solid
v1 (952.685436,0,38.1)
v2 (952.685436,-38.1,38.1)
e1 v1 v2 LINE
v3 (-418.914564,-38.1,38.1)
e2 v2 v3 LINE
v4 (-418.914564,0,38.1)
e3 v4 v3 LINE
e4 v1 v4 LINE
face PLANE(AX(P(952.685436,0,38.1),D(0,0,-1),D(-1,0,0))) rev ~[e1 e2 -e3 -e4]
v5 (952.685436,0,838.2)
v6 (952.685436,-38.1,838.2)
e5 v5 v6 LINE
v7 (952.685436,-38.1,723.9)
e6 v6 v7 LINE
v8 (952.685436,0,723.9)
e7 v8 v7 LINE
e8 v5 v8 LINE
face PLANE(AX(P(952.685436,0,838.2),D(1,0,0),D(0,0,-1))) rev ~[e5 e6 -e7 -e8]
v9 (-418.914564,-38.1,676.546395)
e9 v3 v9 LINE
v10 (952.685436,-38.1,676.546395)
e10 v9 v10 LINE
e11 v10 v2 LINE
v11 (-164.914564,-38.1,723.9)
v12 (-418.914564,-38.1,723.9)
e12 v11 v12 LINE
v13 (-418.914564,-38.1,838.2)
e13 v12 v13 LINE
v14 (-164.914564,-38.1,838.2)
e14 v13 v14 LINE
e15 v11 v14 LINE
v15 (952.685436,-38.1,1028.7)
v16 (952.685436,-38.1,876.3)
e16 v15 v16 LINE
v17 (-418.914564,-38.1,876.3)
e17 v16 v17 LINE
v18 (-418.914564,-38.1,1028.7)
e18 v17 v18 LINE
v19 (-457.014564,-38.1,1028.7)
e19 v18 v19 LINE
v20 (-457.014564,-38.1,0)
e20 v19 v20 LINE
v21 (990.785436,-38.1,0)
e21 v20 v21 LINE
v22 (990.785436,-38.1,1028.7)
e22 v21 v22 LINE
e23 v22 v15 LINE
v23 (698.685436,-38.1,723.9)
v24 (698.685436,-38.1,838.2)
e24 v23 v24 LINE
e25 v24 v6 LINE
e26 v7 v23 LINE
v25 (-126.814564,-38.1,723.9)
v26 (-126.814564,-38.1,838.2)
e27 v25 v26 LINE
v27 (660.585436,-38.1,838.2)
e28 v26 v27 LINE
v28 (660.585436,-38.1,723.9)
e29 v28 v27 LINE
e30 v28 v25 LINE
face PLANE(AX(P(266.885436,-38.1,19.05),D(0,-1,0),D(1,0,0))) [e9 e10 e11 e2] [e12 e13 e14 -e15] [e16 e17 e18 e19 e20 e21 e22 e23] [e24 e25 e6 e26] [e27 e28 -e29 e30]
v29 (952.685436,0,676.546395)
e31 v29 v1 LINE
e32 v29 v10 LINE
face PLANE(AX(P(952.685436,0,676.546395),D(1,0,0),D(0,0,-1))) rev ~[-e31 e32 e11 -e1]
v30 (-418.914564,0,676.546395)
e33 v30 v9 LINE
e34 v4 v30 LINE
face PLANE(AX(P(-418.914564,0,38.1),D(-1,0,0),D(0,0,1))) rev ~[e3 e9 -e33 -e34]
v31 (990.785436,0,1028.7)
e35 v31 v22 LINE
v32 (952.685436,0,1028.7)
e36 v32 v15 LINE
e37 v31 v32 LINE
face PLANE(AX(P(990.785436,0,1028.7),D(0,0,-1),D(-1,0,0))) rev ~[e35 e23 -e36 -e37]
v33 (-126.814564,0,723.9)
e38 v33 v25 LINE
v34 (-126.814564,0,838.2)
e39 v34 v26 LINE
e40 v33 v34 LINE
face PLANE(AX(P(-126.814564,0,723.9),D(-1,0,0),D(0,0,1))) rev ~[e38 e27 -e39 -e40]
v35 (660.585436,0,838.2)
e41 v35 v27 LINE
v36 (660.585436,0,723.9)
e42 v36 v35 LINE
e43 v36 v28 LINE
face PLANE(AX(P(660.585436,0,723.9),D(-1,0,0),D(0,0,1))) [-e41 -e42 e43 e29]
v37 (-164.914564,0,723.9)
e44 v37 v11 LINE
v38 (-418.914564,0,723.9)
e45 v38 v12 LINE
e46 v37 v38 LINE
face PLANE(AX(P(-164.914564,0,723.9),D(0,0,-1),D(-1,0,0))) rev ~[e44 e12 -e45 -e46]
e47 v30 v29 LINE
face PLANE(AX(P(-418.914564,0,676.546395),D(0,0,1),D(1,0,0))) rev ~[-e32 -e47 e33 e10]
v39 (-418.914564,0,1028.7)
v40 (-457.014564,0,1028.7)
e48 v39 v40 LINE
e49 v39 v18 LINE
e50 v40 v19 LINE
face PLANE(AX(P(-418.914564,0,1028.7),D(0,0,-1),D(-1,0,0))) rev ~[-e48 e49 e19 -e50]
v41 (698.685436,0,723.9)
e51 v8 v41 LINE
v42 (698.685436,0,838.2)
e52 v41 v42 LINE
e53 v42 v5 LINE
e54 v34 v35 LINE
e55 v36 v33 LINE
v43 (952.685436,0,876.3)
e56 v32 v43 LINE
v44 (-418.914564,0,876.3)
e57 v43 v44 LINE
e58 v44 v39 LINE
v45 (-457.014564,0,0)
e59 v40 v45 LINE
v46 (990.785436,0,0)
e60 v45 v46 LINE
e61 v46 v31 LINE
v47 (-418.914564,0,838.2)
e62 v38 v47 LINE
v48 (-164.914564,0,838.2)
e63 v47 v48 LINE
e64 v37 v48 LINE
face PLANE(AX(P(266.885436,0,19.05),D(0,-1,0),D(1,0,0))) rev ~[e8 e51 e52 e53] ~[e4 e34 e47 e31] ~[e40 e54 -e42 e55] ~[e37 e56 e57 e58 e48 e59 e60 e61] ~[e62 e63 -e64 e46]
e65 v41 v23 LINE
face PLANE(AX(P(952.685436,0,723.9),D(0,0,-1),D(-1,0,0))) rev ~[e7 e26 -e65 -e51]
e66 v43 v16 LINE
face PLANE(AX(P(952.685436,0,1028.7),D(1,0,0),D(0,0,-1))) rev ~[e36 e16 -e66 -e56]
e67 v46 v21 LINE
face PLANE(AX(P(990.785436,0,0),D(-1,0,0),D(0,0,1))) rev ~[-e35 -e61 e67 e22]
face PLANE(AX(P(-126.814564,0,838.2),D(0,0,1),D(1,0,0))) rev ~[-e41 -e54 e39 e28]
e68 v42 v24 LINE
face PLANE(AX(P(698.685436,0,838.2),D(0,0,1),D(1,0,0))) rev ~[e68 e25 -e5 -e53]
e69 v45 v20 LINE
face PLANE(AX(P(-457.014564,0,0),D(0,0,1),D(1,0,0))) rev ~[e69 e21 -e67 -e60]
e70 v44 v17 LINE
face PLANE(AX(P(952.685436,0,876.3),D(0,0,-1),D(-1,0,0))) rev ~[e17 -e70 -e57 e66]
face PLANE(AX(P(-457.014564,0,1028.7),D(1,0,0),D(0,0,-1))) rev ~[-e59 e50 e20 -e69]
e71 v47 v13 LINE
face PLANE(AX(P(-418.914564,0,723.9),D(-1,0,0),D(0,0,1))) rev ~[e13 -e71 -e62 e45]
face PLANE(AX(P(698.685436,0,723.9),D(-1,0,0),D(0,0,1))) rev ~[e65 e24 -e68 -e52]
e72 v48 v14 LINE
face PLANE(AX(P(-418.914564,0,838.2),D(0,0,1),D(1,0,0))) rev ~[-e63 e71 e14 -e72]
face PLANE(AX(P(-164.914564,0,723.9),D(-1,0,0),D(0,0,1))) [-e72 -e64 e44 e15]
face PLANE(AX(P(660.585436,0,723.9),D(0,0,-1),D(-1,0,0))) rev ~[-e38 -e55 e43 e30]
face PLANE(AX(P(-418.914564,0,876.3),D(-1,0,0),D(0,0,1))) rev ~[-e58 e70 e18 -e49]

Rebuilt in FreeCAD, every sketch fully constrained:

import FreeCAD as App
import Part
import Sketcher

V = App.Vector
Q = App.Units.Quantity

doc = App.newDocument("Part")
body = doc.addObject("PartDesign::Body", "Body")

# Sketch on XZ plane
sketch1 = doc.addObject("Sketcher::SketchObject", "Sketch")
body.addObject(sketch1)
sketch1.AttachmentSupport = (doc.XZ_Plane, [""])
sketch1.MapMode = "FlatFace"
sketch1.addGeometry([
    Part.LineSegment(V(-457, 0, 0), V(991, 0, 0)),  # 0
    Part.LineSegment(V(991, 0, 0), V(991, 1029, 0)),  # 1
    Part.LineSegment(V(991, 1029, 0), V(953, 1029, 0)),  # 2
    Part.LineSegment(V(953, 1029, 0), V(953, 876, 0)),  # 3
    Part.LineSegment(V(953, 876, 0), V(-419, 876, 0)),  # 4
    Part.LineSegment(V(-419, 876, 0), V(-419, 1029, 0)),  # 5
    Part.LineSegment(V(-419, 1029, 0), V(-457, 1029, 0)),  # 6
    Part.LineSegment(V(-457, 1029, 0), V(-457, 0, 0)),  # 7
    Part.LineSegment(V(953, 38, 0), V(-419, 38, 0)),  # 8
    Part.LineSegment(V(-419, 38, 0), V(-419, 677, 0)),  # 9
    Part.LineSegment(V(-419, 677, 0), V(953, 677, 0)),  # 10
    Part.LineSegment(V(953, 677, 0), V(953, 38, 0)),  # 11
    Part.LineSegment(V(-419, 724, 0), V(-419, 838, 0)),  # 12
    Part.LineSegment(V(-419, 838, 0), V(-165, 838, 0)),  # 13
    Part.LineSegment(V(-165, 838, 0), V(-165, 724, 0)),  # 14
    Part.LineSegment(V(-165, 724, 0), V(-419, 724, 0)),  # 15
    Part.LineSegment(V(-127, 724, 0), V(-127, 838, 0)),  # 16
    Part.LineSegment(V(-127, 838, 0), V(661, 838, 0)),  # 17
    Part.LineSegment(V(661, 838, 0), V(661, 724, 0)),  # 18
    Part.LineSegment(V(661, 724, 0), V(-127, 724, 0)),  # 19
    Part.LineSegment(V(699, 838, 0), V(953, 838, 0)),  # 20
    Part.LineSegment(V(953, 838, 0), V(953, 724, 0)),  # 21
    Part.LineSegment(V(953, 724, 0), V(699, 724, 0)),  # 22
    Part.LineSegment(V(699, 724, 0), V(699, 838, 0)),  # 23
], False)
sketch1.addConstraint([
    Sketcher.Constraint("Coincident", 0, 2, 1, 1),
    Sketcher.Constraint("Coincident", 1, 2, 2, 1),
    Sketcher.Constraint("Coincident", 2, 2, 3, 1),
    Sketcher.Constraint("Coincident", 3, 2, 4, 1),
    Sketcher.Constraint("Coincident", 4, 2, 5, 1),
    Sketcher.Constraint("Coincident", 5, 2, 6, 1),
    Sketcher.Constraint("Coincident", 6, 2, 7, 1),
    Sketcher.Constraint("Coincident", 7, 2, 0, 1),
    Sketcher.Constraint("Coincident", 8, 2, 9, 1),
    Sketcher.Constraint("Coincident", 9, 2, 10, 1),
    Sketcher.Constraint("Coincident", 10, 2, 11, 1),
    Sketcher.Constraint("Coincident", 11, 2, 8, 1),
    Sketcher.Constraint("Coincident", 12, 2, 13, 1),
    Sketcher.Constraint("Coincident", 13, 2, 14, 1),
    Sketcher.Constraint("Coincident", 14, 2, 15, 1),
    Sketcher.Constraint("Coincident", 15, 2, 12, 1),
    Sketcher.Constraint("Coincident", 16, 2, 17, 1),
    Sketcher.Constraint("Coincident", 17, 2, 18, 1),
    Sketcher.Constraint("Coincident", 18, 2, 19, 1),
    Sketcher.Constraint("Coincident", 19, 2, 16, 1),
    Sketcher.Constraint("Coincident", 20, 2, 21, 1),
    Sketcher.Constraint("Coincident", 21, 2, 22, 1),
    Sketcher.Constraint("Coincident", 22, 2, 23, 1),
    Sketcher.Constraint("Coincident", 23, 2, 20, 1),
    Sketcher.Constraint("Horizontal", 0),
    Sketcher.Constraint("Vertical", 1),
    Sketcher.Constraint("Horizontal", 2),
    Sketcher.Constraint("Vertical", 3),
    Sketcher.Constraint("Horizontal", 4),
    Sketcher.Constraint("Vertical", 5),
    Sketcher.Constraint("Horizontal", 6),
    Sketcher.Constraint("Vertical", 7),
    Sketcher.Constraint("Horizontal", 8),
    Sketcher.Constraint("Vertical", 9),
    Sketcher.Constraint("Horizontal", 10),
    Sketcher.Constraint("Vertical", 11),
    Sketcher.Constraint("Vertical", 12),
    Sketcher.Constraint("Horizontal", 13),
    Sketcher.Constraint("Vertical", 14),
    Sketcher.Constraint("Horizontal", 15),
    Sketcher.Constraint("Vertical", 16),
    Sketcher.Constraint("Horizontal", 17),
    Sketcher.Constraint("Vertical", 18),
    Sketcher.Constraint("Horizontal", 19),
    Sketcher.Constraint("Horizontal", 20),
    Sketcher.Constraint("Vertical", 21),
    Sketcher.Constraint("Horizontal", 22),
    Sketcher.Constraint("Vertical", 23),
    Sketcher.Constraint("PointOnObject", 0, 2, -1),
    Sketcher.Constraint("Horizontal", 2, 2, 5, 2),
    Sketcher.Constraint("Horizontal", 13, 2, 16, 2),
    Sketcher.Constraint("Horizontal", 15, 2, 18, 2),
    Sketcher.Constraint("Horizontal", 17, 2, 20, 2),
    Sketcher.Constraint("Horizontal", 19, 2, 21, 2),
    Sketcher.Constraint("Vertical", 5, 2, 8, 2),
    Sketcher.Constraint("Vertical", 3, 2, 10, 2),
    Sketcher.Constraint("Vertical", 9, 2, 12, 2),
    Sketcher.Constraint("Vertical", 11, 2, 20, 2),
    Sketcher.Constraint("Equal", 2, 6),
    Sketcher.Constraint("Equal", 15, 20),
    Sketcher.Constraint("DistanceX", 0, 1, 0, 2, Q("57 in")),
    Sketcher.Constraint("DistanceX", 4, 2, 4, 1, Q("54 in")),
    Sketcher.Constraint("DistanceX", 13, 1, 13, 2, Q("10 in")),
    Sketcher.Constraint("DistanceX", 17, 1, 17, 2, Q("31 in")),
    Sketcher.Constraint("DistanceY", 3, 2, 3, 1, Q("6 in")),
    Sketcher.Constraint("DistanceY", 1, 1, 1, 2, Q("40.5 in")),
    Sketcher.Constraint("DistanceY", 12, 1, 12, 2, Q("4.5 in")),
    Sketcher.Constraint("DistanceY", -1, 1, 12, 2, Q("33 in")),
    Sketcher.Constraint("DistanceY", 8, 2, 4, 2, Q("33 in")),
    Sketcher.Constraint("DistanceX", 17, 2, 1, 2, Q("13 in")),
    Sketcher.Constraint("DistanceY", 9, 1, 9, 2, Q("638.446395 mm")),
    Sketcher.Constraint("DistanceX", -1, 1, 0, 2, Q("990.785436 mm")),
])
pad1 = doc.addObject("PartDesign::Pad", "Pad")
body.addObject(pad1)
pad1.Profile = sketch1
pad1.Length = Q("1.5 in")

doc.recompute()
